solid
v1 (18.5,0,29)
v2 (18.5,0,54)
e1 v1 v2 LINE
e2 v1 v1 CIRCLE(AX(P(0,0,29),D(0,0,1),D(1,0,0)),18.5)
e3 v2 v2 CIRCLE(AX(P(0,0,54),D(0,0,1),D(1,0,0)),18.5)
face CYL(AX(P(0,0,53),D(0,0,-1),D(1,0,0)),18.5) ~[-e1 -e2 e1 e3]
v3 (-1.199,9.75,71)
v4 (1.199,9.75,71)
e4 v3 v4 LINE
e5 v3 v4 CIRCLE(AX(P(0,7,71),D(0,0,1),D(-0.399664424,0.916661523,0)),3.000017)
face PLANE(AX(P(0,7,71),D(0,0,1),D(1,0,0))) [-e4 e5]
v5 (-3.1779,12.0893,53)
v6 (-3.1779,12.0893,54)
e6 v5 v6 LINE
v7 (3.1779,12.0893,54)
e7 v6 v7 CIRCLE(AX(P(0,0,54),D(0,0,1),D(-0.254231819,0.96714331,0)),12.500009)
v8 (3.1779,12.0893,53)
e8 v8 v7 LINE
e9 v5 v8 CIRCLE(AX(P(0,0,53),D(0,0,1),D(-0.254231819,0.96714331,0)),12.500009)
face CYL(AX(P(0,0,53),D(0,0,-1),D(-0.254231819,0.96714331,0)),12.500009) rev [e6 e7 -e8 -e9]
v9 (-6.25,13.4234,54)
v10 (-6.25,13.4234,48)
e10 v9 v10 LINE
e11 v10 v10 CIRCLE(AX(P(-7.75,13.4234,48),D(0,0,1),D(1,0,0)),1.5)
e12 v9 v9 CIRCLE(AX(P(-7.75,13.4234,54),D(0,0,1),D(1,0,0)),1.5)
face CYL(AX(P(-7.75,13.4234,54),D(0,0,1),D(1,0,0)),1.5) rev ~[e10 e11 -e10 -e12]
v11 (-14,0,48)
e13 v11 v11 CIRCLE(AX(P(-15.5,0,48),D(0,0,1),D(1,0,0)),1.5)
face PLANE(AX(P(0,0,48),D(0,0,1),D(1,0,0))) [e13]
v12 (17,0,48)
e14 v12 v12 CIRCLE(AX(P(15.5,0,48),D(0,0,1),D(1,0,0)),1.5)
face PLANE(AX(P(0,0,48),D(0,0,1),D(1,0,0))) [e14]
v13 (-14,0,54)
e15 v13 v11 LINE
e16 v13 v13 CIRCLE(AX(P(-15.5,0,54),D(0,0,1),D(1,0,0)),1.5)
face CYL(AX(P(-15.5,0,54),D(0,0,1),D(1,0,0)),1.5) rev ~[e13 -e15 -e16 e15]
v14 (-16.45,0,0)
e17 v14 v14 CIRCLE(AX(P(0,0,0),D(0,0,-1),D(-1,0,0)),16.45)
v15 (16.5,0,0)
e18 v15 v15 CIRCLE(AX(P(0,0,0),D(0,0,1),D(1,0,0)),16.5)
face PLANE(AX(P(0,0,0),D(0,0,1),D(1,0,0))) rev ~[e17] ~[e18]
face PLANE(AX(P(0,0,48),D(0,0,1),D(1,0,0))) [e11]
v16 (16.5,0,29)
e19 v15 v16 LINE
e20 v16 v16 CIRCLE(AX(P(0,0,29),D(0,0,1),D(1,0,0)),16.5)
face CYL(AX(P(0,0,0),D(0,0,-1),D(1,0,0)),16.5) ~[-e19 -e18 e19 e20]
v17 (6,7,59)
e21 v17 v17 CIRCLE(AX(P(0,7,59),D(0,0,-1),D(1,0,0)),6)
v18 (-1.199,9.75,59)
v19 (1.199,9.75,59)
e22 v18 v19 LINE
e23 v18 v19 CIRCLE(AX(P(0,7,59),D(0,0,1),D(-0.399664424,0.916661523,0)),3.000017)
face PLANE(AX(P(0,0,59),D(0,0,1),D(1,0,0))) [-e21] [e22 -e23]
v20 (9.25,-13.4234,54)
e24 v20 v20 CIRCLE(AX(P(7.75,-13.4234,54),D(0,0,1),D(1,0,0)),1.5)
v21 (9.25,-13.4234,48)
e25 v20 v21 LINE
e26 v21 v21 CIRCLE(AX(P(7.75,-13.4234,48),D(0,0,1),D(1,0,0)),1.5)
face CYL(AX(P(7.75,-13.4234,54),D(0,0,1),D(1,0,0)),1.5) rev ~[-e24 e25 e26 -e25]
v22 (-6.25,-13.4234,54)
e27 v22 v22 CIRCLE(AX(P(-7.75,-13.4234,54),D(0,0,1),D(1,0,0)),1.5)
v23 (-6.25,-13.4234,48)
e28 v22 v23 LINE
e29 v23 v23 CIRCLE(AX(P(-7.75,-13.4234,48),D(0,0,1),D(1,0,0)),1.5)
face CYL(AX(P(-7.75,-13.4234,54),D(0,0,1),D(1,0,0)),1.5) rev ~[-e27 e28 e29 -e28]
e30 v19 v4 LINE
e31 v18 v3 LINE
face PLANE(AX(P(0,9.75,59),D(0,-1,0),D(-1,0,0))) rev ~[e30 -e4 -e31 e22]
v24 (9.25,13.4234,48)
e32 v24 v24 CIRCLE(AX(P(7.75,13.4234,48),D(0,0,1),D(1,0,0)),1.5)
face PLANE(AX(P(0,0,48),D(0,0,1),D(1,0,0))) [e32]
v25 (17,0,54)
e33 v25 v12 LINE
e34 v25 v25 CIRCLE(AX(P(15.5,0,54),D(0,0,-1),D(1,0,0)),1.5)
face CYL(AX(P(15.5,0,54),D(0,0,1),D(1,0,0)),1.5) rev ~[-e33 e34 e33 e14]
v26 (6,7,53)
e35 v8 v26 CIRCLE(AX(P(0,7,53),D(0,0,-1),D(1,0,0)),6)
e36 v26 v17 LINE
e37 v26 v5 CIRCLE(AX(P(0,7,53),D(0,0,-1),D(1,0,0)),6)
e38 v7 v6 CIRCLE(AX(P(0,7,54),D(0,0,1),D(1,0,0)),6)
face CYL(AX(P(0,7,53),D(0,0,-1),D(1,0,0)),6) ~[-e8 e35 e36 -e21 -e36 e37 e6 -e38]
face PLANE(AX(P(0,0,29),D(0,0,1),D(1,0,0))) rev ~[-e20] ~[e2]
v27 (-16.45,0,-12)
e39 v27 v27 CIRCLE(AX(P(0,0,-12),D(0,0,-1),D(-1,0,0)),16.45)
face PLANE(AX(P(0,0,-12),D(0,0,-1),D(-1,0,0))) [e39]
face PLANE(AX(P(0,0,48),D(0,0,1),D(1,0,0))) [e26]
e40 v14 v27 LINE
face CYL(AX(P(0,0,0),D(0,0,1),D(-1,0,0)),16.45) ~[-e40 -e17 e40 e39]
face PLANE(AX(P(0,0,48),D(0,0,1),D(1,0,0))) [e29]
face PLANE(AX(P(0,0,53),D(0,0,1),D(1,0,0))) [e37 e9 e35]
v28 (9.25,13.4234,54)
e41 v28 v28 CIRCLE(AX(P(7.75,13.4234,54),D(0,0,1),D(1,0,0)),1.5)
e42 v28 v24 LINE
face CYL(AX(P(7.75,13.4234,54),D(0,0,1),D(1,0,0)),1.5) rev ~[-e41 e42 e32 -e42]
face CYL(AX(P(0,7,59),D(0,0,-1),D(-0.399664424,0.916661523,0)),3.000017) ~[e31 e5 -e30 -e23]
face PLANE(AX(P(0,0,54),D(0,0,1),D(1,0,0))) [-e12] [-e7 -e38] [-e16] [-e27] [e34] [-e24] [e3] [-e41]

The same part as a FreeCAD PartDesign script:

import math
import FreeCAD as App
import Part
import Sketcher
from FreeCAD import Vector

doc = App.newDocument("Part")
params = doc.addObject("Spreadsheet::Sheet", "Params")
for row, (alias, value) in enumerate([
    ("sketch1_diameter", "33 mm"),
    ("pad1_length", "29 mm"),
    ("sketch2_diameter", "37 mm"),
    ("pad2_length", "24 mm"),
    ("sketch3_diameter", "12 mm"),
    ("pad3_length", "6 mm"),
    ("sketch4_radius", "3 mm"),
    ("pad4_length", "12 mm"),
    ("sketch5_diameter", "32.9 mm"),
    ("pad5_length", "12 mm"),
    ("sketch6_radius", "12.5 mm"),
    ("sketch6_diameter", "37 mm"),
    ("sketch6_radius2", "6 mm"),
    ("pad6_length", "1 mm"),
    ("sketch7_diameter", "3 mm"),
    ("pocket1_length", "6 mm"),
], start=1):
    params.set(f"A{row}", alias)
    params.set(f"B{row}", "=" + value)
    params.setAlias(f"B{row}", alias)

body = doc.addObject("PartDesign::Body", "Body")

# Sketch on XY plane
sketch1 = body.newObject("Sketcher::SketchObject", "Sketch")
sketch1.AttachmentSupport = (doc.getObject("XY_Plane"), [""])
sketch1.MapMode = "FlatFace"
sketch1.addGeometry(Part.Circle(Vector(0, 0, 0), Vector(0, 0, 1), 16.5), False)
sketch1.addConstraint(Sketcher.Constraint("Coincident", 0, 3, -1, 1))
sketch1.addConstraint(Sketcher.Constraint("Diameter", 0, 33.0))
sketch1.setExpression("Constraints[1]", "Params.sketch1_diameter")
pad1 = body.newObject("PartDesign::Pad", "Pad")
pad1.Profile = sketch1
pad1.setExpression("Length", "Params.pad1_length")

# Sketch on XY plane
sketch2 = body.newObject("Sketcher::SketchObject", "Sketch001")
sketch2.AttachmentSupport = (doc.getObject("XY_Plane"), [""])
sketch2.MapMode = "FlatFace"
sketch2.AttachmentOffset = App.Placement(Vector(0, 0, 29), App.Rotation())
sketch2.addGeometry(Part.Circle(Vector(0, 0, 0), Vector(0, 0, 1), 18.5), False)
sketch2.addConstraint(Sketcher.Constraint("Coincident", 0, 3, -1, 1))
sketch2.addConstraint(Sketcher.Constraint("Diameter", 0, 37.0))
sketch2.setExpression("Constraints[1]", "Params.sketch2_diameter")
pad2 = body.newObject("PartDesign::Pad", "Pad001")
pad2.Profile = sketch2
pad2.setExpression("Length", "Params.pad2_length")

# Sketch on XY plane
sketch3 = body.newObject("Sketcher::SketchObject", "Sketch002")
sketch3.AttachmentSupport = (doc.getObject("XY_Plane"), [""])
sketch3.MapMode = "FlatFace"
sketch3.AttachmentOffset = App.Placement(Vector(0, 0, 53), App.Rotation())
sketch3.addGeometry(Part.Circle(Vector(0, 7, 0), Vector(0, 0, 1), 6), False)
sketch3.addConstraint(Sketcher.Constraint("PointOnObject", 0, 3, -2))
sketch3.addConstraint(Sketcher.Constraint("Diameter", 0, 12.0))
sketch3.addConstraint(Sketcher.Constraint("DistanceY", -1, 1, 0, 3, 7.0))
sketch3.setExpression("Constraints[1]", "Params.sketch3_diameter")
pad3 = body.newObject("PartDesign::Pad", "Pad002")
pad3.Profile = sketch3
pad3.setExpression("Length", "Params.pad3_length")

# Sketch on XY plane
sketch4 = body.newObject("Sketcher::SketchObject", "Sketch003")
sketch4.AttachmentSupport = (doc.getObject("XY_Plane"), [""])
sketch4.MapMode = "FlatFace"
sketch4.AttachmentOffset = App.Placement(Vector(0, 0, 59), App.Rotation())
sketch4.addGeometry(Part.LineSegment(Vector(1.199, 9.75, 0), Vector(-1.199, 9.75, 0)), False)
sketch4.addGeometry(Part.ArcOfCircle(Part.Circle(Vector(0, 7, 0), Vector(0, 0, 1), 3.000017), math.radians(113.557202), math.radians(426.442798)), False)
sketch4.addConstraint(Sketcher.Constraint("Coincident", 0, 1, 1, 2))
sketch4.addConstraint(Sketcher.Constraint("Coincident", 1, 1, 0, 2))
sketch4.addConstraint(Sketcher.Constraint("Horizontal", 0))
sketch4.addConstraint(Sketcher.Constraint("PointOnObject", 1, 3, -2))
sketch4.addConstraint(Sketcher.Constraint("Radius", 1, 3.0))
sketch4.addConstraint(Sketcher.Constraint("DistanceY", 1, 3, 0, 1, 2.75))
sketch4.addConstraint(Sketcher.Constraint("DistanceY", -1, 1, 1, 3, 7.0))
sketch4.setExpression("Constraints[4]", "Params.sketch4_radius")
pad4 = body.newObject("PartDesign::Pad", "Pad003")
pad4.Profile = sketch4
pad4.setExpression("Length", "Params.pad4_length")

# Sketch on XY plane
sketch5 = body.newObject("Sketcher::SketchObject", "Sketch004")
sketch5.AttachmentSupport = (doc.getObject("XY_Plane"), [""])
sketch5.MapMode = "FlatFace"
sketch5.addGeometry(Part.Circle(Vector(0, 0, 0), Vector(0, 0, 1), 16.45), False)
sketch5.addConstraint(Sketcher.Constraint("Coincident", 0, 3, -1, 1))
sketch5.addConstraint(Sketcher.Constraint("Diameter", 0, 32.9))
sketch5.setExpression("Constraints[1]", "Params.sketch5_diameter")
pad5 = body.newObject("PartDesign::Pad", "Pad004")
pad5.Profile = sketch5
pad5.setExpression("Length", "Params.pad5_length")
pad5.Reversed = True

# Sketch on XY plane
sketch6 = body.newObject("Sketcher::SketchObject", "Sketch005")
sketch6.AttachmentSupport = (doc.getObject("XY_Plane"), [""])
sketch6.MapMode = "FlatFace"
sketch6.AttachmentOffset = App.Placement(Vector(0, 0, 53), App.Rotation())
sketch6.addGeometry(Part.Circle(Vector(0, 0, 0), Vector(0, 0, 1), 18.5), False)
sketch6.addGeometry(Part.ArcOfCircle(Part.Circle(Vector(0, 0, 0), Vector(0, 0, 1), 12.500009), math.radians(104.728072), math.radians(435.271928)), False)
sketch6.addGeometry(Part.ArcOfCircle(Part.Circle(Vector(0, 7, 0), Vector(0, 0, 1), 6), math.radians(58.018202), math.radians(121.981798)), False)
sketch6.addConstraint(Sketcher.Constraint("Coincident", 1, 1, 2, 2))
sketch6.addConstraint(Sketcher.Constraint("Coincident", 2, 1, 1, 2))
sketch6.addConstraint(Sketcher.Constraint("Coincident", 0, 3, -1, 1))
sketch6.addConstraint(Sketcher.Constraint("Coincident", 1, 3, -1, 1))
sketch6.addConstraint(Sketcher.Constraint("PointOnObject", 2, 3, -2))
sketch6.addConstraint(Sketcher.Constraint("Radius", 1, 12.5))
sketch6.addConstraint(Sketcher.Constraint("Diameter", 0, 37.0))
sketch6.addConstraint(Sketcher.Constraint("Radius", 2, 6.0))
sketch6.addConstraint(Sketcher.Constraint("DistanceY", -1, 1, 2, 3, 7.0))
sketch6.setExpression("Constraints[5]", "Params.sketch6_radius")
sketch6.setExpression("Constraints[6]", "Params.sketch6_diameter")
sketch6.setExpression("Constraints[7]", "Params.sketch6_radius2")
pad6 = body.newObject("PartDesign::Pad", "Pad005")
pad6.Profile = sketch6
pad6.setExpression("Length", "Params.pad6_length")

# Sketch on XY plane
sketch7 = body.newObject("Sketcher::SketchObject", "Sketch006")
sketch7.AttachmentSupport = (doc.getObject("XY_Plane"), [""])
sketch7.MapMode = "FlatFace"
sketch7.AttachmentOffset = App.Placement(Vector(0, 0, 54), App.Rotation())
sketch7.addGeometry(Part.Circle(Vector(15.5, 0, 0), Vector(0, 0, 1), 1.5), False)
sketch7.addGeometry(Part.Circle(Vector(7.75, 13.4234, 0), Vector(0, 0, 1), 1.5), False)
sketch7.addGeometry(Part.Circle(Vector(-7.75, 13.4234, 0), Vector(0, 0, 1), 1.5), False)
sketch7.addGeometry(Part.Circle(Vector(-15.5, 0, 0), Vector(0, 0, 1), 1.5), False)
sketch7.addGeometry(Part.Circle(Vector(-7.75, -13.4234, 0), Vector(0, 0, 1), 1.5), False)
sketch7.addGeometry(Part.Circle(Vector(7.75, -13.4234, 0), Vector(0, 0, 1), 1.5), False)
sketch7.addConstraint(Sketcher.Constraint("Equal", 0, 1))
sketch7.addConstraint(Sketcher.Constraint("Equal", 1, 2))
sketch7.addConstraint(Sketcher.Constraint("Equal", 2, 3))
sketch7.addConstraint(Sketcher.Constraint("Equal", 3, 4))
sketch7.addConstraint(Sketcher.Constraint("Equal", 4, 5))
sketch7.addConstraint(Sketcher.Constraint("Symmetric", 0, 3, 3, 3, -1, 1))
sketch7.addConstraint(Sketcher.Constraint("Symmetric", 1, 3, 4, 3, -1, 1))
sketch7.addConstraint(Sketcher.Constraint("Symmetric", 2, 3, 5, 3, -1, 1))
sketch7.addConstraint(Sketcher.Constraint("Symmetric", 1, 3, 2, 3, -2))
sketch7.addConstraint(Sketcher.Constraint("PointOnObject", 0, 3, -1))
sketch7.addConstraint(Sketcher.Constraint("Diameter", 0, 3.0))
sketch7.addConstraint(Sketcher.Constraint("DistanceX", 3, 3, 0, 3, 31.0))
sketch7.addConstraint(Sketcher.Constraint("DistanceX", 2, 3, 1, 3, 15.5))
sketch7.addConstraint(Sketcher.Constraint("DistanceY", -1, 1, 1, 3, 13.4234))
sketch7.setExpression("Constraints[10]", "Params.sketch7_diameter")
pocket1 = body.newObject("PartDesign::Pocket", "Pocket")
pocket1.Profile = sketch7
pocket1.setExpression("Length", "Params.pocket1_length")

doc.recompute()
